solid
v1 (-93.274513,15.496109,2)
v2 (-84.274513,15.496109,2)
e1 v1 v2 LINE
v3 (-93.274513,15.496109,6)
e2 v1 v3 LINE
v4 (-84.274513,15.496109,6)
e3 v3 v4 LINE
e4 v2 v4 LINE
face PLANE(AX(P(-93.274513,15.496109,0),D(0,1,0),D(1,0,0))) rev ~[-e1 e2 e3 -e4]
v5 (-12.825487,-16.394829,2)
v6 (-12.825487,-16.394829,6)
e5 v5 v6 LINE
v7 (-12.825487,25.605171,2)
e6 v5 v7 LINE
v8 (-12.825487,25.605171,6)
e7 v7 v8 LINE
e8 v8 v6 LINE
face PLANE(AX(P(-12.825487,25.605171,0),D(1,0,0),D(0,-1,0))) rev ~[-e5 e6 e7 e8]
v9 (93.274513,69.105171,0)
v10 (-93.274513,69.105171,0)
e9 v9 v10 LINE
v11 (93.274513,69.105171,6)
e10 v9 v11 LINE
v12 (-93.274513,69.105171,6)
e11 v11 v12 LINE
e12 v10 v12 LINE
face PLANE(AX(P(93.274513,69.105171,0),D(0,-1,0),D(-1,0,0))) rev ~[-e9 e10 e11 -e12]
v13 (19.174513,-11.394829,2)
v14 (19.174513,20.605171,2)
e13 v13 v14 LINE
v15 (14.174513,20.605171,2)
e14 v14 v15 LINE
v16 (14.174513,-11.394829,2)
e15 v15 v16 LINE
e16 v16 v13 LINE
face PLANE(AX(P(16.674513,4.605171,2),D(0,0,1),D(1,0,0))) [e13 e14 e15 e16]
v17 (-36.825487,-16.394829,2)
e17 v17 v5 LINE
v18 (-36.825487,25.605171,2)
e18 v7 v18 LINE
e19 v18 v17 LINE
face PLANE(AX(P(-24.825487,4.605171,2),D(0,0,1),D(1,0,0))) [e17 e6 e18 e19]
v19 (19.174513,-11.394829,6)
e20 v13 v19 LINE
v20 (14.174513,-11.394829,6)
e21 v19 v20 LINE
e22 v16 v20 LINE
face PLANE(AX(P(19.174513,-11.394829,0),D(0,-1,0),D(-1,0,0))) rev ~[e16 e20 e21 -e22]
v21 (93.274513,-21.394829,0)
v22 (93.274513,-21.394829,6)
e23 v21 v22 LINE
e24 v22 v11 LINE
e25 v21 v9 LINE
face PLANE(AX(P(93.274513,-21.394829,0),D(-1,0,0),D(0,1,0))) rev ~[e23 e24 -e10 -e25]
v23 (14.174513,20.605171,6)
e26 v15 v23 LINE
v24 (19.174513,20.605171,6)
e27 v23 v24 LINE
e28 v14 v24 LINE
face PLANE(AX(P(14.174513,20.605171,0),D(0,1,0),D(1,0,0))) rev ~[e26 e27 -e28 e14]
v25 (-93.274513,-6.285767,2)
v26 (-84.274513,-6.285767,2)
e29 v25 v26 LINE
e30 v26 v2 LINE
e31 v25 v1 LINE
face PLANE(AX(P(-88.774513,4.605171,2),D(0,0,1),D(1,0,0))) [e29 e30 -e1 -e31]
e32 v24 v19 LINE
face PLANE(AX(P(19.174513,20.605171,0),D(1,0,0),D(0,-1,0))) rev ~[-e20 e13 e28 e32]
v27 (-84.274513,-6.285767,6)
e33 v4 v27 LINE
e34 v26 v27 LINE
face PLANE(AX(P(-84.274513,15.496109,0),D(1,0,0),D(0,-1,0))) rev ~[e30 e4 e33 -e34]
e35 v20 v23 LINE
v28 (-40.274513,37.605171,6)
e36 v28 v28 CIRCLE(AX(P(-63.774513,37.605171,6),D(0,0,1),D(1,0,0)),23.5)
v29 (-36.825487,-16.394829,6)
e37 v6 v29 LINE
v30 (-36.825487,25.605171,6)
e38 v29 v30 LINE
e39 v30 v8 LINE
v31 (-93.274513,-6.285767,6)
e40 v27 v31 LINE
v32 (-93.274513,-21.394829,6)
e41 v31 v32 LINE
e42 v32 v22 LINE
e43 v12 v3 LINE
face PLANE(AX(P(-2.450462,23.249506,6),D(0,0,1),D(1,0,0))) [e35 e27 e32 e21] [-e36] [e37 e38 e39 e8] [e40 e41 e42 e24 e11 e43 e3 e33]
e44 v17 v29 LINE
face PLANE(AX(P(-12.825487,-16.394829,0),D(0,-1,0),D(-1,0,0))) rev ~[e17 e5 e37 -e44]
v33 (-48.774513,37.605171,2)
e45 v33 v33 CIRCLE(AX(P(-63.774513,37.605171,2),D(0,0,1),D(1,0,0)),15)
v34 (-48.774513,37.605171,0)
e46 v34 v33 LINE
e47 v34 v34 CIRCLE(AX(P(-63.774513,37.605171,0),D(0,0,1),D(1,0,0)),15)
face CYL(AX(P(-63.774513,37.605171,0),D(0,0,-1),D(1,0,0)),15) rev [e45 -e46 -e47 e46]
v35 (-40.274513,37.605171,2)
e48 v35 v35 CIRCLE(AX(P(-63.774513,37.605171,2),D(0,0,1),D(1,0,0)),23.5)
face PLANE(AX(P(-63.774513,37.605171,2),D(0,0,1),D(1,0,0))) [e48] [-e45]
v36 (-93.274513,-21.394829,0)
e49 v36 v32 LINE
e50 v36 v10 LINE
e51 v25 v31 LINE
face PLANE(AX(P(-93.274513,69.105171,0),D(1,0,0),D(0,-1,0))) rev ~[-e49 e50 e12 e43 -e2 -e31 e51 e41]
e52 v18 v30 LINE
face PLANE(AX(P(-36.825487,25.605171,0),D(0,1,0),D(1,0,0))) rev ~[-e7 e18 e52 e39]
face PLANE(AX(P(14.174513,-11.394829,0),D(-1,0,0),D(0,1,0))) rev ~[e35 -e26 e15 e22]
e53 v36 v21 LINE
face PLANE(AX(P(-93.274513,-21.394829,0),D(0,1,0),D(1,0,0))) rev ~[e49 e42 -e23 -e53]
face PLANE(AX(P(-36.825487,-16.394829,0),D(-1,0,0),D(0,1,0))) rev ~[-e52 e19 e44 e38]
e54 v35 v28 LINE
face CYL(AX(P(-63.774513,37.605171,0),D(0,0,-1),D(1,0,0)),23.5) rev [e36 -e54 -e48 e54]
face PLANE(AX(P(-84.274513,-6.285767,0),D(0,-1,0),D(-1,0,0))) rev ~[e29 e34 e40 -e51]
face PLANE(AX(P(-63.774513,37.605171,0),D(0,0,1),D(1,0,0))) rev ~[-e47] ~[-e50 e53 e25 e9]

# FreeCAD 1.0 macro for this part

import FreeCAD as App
import Part
import Sketcher
from FreeCAD import Vector

doc = App.newDocument("Part")
body = doc.addObject("PartDesign::Body", "Body")

# Sketch on XY plane
sketch1 = doc.addObject("Sketcher::SketchObject", "Sketch")
body.addObject(sketch1)
sketch1.AttachmentSupport = (doc.XY_Plane, [""])
sketch1.MapMode = "FlatFace"
sketch1.addGeometry([
    Part.LineSegment(Vector(93.274513, 69.105171, 0), Vector(-93.274513, 69.105171, 0)),  # 0
    Part.LineSegment(Vector(-93.274513, 69.105171, 0), Vector(-93.274513, 15.496109, 0)),  # 1
    Part.LineSegment(Vector(-93.274513, 15.496109, 0), Vector(-84.274513, 15.496109, 0)),  # 2
    Part.LineSegment(Vector(-84.274513, 15.496109, 0), Vector(-84.274513, -6.285767, 0)),  # 3
    Part.LineSegment(Vector(-84.274513, -6.285767, 0), Vector(-93.274513, -6.285767, 0)),  # 4
    Part.LineSegment(Vector(-93.274513, -6.285767, 0), Vector(-93.274513, -21.394829, 0)),  # 5
    Part.LineSegment(Vector(-93.274513, -21.394829, 0), Vector(93.274513, -21.394829, 0)),  # 6
    Part.LineSegment(Vector(93.274513, -21.394829, 0), Vector(93.274513, 69.105171, 0)),  # 7
    Part.LineSegment(Vector(-36.825487, -16.394829, 0), Vector(-36.825487, 25.605171, 0)),  # 8
    Part.LineSegment(Vector(-36.825487, 25.605171, 0), Vector(-12.825487, 25.605171, 0)),  # 9
    Part.LineSegment(Vector(-12.825487, 25.605171, 0), Vector(-12.825487, -16.394829, 0)),  # 10
    Part.LineSegment(Vector(-12.825487, -16.394829, 0), Vector(-36.825487, -16.394829, 0)),  # 11
    Part.LineSegment(Vector(14.174513, -11.394829, 0), Vector(14.174513, 20.605171, 0)),  # 12
    Part.LineSegment(Vector(14.174513, 20.605171, 0), Vector(19.174513, 20.605171, 0)),  # 13
    Part.LineSegment(Vector(19.174513, 20.605171, 0), Vector(19.174513, -11.394829, 0)),  # 14
    Part.LineSegment(Vector(19.174513, -11.394829, 0), Vector(14.174513, -11.394829, 0)),  # 15
    Part.Circle(Vector(-63.774513, 37.605171, 0), Vector(0, 0, 1), 23.5),  # 16
], False)
sketch1.addConstraint([
    Sketcher.Constraint("Coincident", 0, 2, 1, 1),
    Sketcher.Constraint("Coincident", 1, 2, 2, 1),
    Sketcher.Constraint("Coincident", 2, 2, 3, 1),
    Sketcher.Constraint("Coincident", 3, 2, 4, 1),
    Sketcher.Constraint("Coincident", 4, 2, 5, 1),
    Sketcher.Constraint("Coincident", 5, 2, 6, 1),
    Sketcher.Constraint("Coincident", 6, 2, 7, 1),
    Sketcher.Constraint("Coincident", 7, 2, 0, 1),
    Sketcher.Constraint("Coincident", 8, 2, 9, 1),
    Sketcher.Constraint("Coincident", 9, 2, 10, 1),
    Sketcher.Constraint("Coincident", 10, 2, 11, 1),
    Sketcher.Constraint("Coincident", 11, 2, 8, 1),
    Sketcher.Constraint("Coincident", 12, 2, 13, 1),
    Sketcher.Constraint("Coincident", 13, 2, 14, 1),
    Sketcher.Constraint("Coincident", 14, 2, 15, 1),
    Sketcher.Constraint("Coincident", 15, 2, 12, 1),
    Sketcher.Constraint("Horizontal", 0),
    Sketcher.Constraint("Vertical", 1),
    Sketcher.Constraint("Horizontal", 2),
    Sketcher.Constraint("Vertical", 3),
    Sketcher.Constraint("Horizontal", 4),
    Sketcher.Constraint("Vertical", 5),
    Sketcher.Constraint("Horizontal", 6),
    Sketcher.Constraint("Vertical", 7),
    Sketcher.Constraint("Vertical", 8),
    Sketcher.Constraint("Horizontal", 9),
    Sketcher.Constraint("Vertical", 10),
    Sketcher.Constraint("Horizontal", 11),
    Sketcher.Constraint("Vertical", 12),
    Sketcher.Constraint("Horizontal", 13),
    Sketcher.Constraint("Vertical", 14),
    Sketcher.Constraint("Horizontal", 15),
    Sketcher.Constraint("Vertical", 1, 2, 4, 2),
    Sketcher.Constraint("Diameter", 16, 47.0),
    Sketcher.Constraint("DistanceX", 2, 1, 2, 2, 9.0),
    Sketcher.Constraint("DistanceX", 9, 1, 9, 2, 24.0),
    Sketcher.Constraint("DistanceX", 13, 1, 13, 2, 5.0),
    Sketcher.Constraint("DistanceY", 8, 1, 8, 2, 42.0),
    Sketcher.Constraint("DistanceY", 12, 1, 12, 2, 32.0),
    Sketcher.Constraint("DistanceY", 7, 1, 7, 2, 90.5),
    Sketcher.Constraint("DistanceY", 5, 2, 16, 3, 59.0),
    Sketcher.Constraint("DistanceY", 8, 2, 16, 3, 12.0),
    Sketcher.Constraint("DistanceX", 9, 2, 12, 2, 27.0),
    Sketcher.Constraint("DistanceY", 12, 2, 9, 2, 5.0),
    Sketcher.Constraint("DistanceX", 0, 2, 16, 3, 29.5),
    Sketcher.Constraint("DistanceY", 1, 2, 1, 1, 53.609062),
    Sketcher.Constraint("DistanceX", 0, 2, 0, 1, 186.549026),
    Sketcher.Constraint("DistanceY", 3, 2, 3, 1, 21.781876),
    Sketcher.Constraint("DistanceY", -1, 1, 16, 3, 37.605171),
    Sketcher.Constraint("DistanceX", 16, 3, -1, 1, 63.774513),
    Sketcher.Constraint("DistanceX", 8, 2, -1, 1, 36.825487),
])
pad1 = doc.addObject("PartDesign::Pad", "Pad")
body.addObject(pad1)
pad1.Profile = sketch1
pad1.Length = 6

# Sketch on XY plane
sketch2 = doc.addObject("Sketcher::SketchObject", "Sketch001")
body.addObject(sketch2)
sketch2.AttachmentSupport = (doc.XY_Plane, [""])
sketch2.MapMode = "FlatFace"
sketch2.addGeometry([
    Part.Circle(Vector(-63.774513, 37.605171, 0), Vector(0, 0, 1), 23.5),  # 0
    Part.Circle(Vector(-63.774513, 37.605171, 0), Vector(0, 0, 1), 15),  # 1
    Part.LineSegment(Vector(-93.274513, 15.496109, 0), Vector(-93.274513, -6.285767, 0)),  # 2
    Part.LineSegment(Vector(-93.274513, -6.285767, 0), Vector(-84.274513, -6.285767, 0)),  # 3
    Part.LineSegment(Vector(-84.274513, -6.285767, 0), Vector(-84.274513, 15.496109, 0)),  # 4
    Part.LineSegment(Vector(-84.274513, 15.496109, 0), Vector(-93.274513, 15.496109, 0)),  # 5
    Part.LineSegment(Vector(-36.825487, 25.605171, 0), Vector(-36.825487, -16.394829, 0)),  # 6
    Part.LineSegment(Vector(-36.825487, -16.394829, 0), Vector(-12.825487, -16.394829, 0)),  # 7
    Part.LineSegment(Vector(-12.825487, -16.394829, 0), Vector(-12.825487, 25.605171, 0)),  # 8
    Part.LineSegment(Vector(-12.825487, 25.605171, 0), Vector(-36.825487, 25.605171, 0)),  # 9
    Part.LineSegment(Vector(19.174513, 20.605171, 0), Vector(14.174513, 20.605171, 0)),  # 10
    Part.LineSegment(Vector(14.174513, 20.605171, 0), Vector(14.174513, -11.394829, 0)),  # 11
    Part.LineSegment(Vector(14.174513, -11.394829, 0), Vector(19.174513, -11.394829, 0)),  # 12
    Part.LineSegment(Vector(19.174513, -11.394829, 0), Vector(19.174513, 20.605171, 0)),  # 13
], False)
sketch2.addConstraint([
    Sketcher.Constraint("Coincident", 2, 2, 3, 1),
    Sketcher.Constraint("Coincident", 3, 2, 4, 1),
    Sketcher.Constraint("Coincident", 4, 2, 5, 1),
    Sketcher.Constraint("Coincident", 5, 2, 2, 1),
    Sketcher.Constraint("Coincident", 6, 2, 7, 1),
    Sketcher.Constraint("Coincident", 7, 2, 8, 1),
    Sketcher.Constraint("Coincident", 8, 2, 9, 1),
    Sketcher.Constraint("Coincident", 9, 2, 6, 1),
    Sketcher.Constraint("Coincident", 10, 2, 11, 1),
    Sketcher.Constraint("Coincident", 11, 2, 12, 1),
    Sketcher.Constraint("Coincident", 12, 2, 13, 1),
    Sketcher.Constraint("Coincident", 13, 2, 10, 1),
    Sketcher.Constraint("Vertical", 2),
    Sketcher.Constraint("Horizontal", 3),
    Sketcher.Constraint("Vertical", 4),
    Sketcher.Constraint("Horizontal", 5),
    Sketcher.Constraint("Vertical", 6),
    Sketcher.Constraint("Horizontal", 7),
    Sketcher.Constraint("Vertical", 8),
    Sketcher.Constraint("Horizontal", 9),
    Sketcher.Constraint("Horizontal", 10),
    Sketcher.Constraint("Vertical", 11),
    Sketcher.Constraint("Horizontal", 12),
    Sketcher.Constraint("Vertical", 13),
    Sketcher.Constraint("Coincident", 1, 3, 0, 3),
    Sketcher.Constraint("Diameter", 0, 47.0),
    Sketcher.Constraint("Diameter", 1, 30.0),
    Sketcher.Constraint("DistanceX", 3, 1, 3, 2, 9.0),
    Sketcher.Constraint("DistanceX", 7, 1, 7, 2, 24.0),
    Sketcher.Constraint("DistanceX", 10, 2, 10, 1, 5.0),
    Sketcher.Constraint("DistanceY", 6, 2, 6, 1, 42.0),
    Sketcher.Constraint("DistanceY", 11, 2, 11, 1, 32.0),
    Sketcher.Constraint("DistanceY", 6, 2, 0, 3, 54.0),
    Sketcher.Constraint("DistanceX", 8, 2, 10, 2, 27.0),
    Sketcher.Constraint("DistanceY", 10, 2, 8, 2, 5.0),
    Sketcher.Constraint("DistanceX", 2, 2, 0, 3, 29.5),
    Sketcher.Constraint("DistanceY", 2, 2, 2, 1, 21.781876),
    Sketcher.Constraint("DistanceY", -1, 1, 0, 3, 37.605171),
    Sketcher.Constraint("DistanceY", -1, 1, 4, 2, 15.496109),
    Sketcher.Constraint("DistanceX", 0, 3, -1, 1, 63.774513),
    Sketcher.Constraint("DistanceX", 6, 2, -1, 1, 36.825487),
])
pad2 = doc.addObject("PartDesign::Pad", "Pad001")
body.addObject(pad2)
pad2.Profile = sketch2
pad2.Length = 2

doc.recompute()
